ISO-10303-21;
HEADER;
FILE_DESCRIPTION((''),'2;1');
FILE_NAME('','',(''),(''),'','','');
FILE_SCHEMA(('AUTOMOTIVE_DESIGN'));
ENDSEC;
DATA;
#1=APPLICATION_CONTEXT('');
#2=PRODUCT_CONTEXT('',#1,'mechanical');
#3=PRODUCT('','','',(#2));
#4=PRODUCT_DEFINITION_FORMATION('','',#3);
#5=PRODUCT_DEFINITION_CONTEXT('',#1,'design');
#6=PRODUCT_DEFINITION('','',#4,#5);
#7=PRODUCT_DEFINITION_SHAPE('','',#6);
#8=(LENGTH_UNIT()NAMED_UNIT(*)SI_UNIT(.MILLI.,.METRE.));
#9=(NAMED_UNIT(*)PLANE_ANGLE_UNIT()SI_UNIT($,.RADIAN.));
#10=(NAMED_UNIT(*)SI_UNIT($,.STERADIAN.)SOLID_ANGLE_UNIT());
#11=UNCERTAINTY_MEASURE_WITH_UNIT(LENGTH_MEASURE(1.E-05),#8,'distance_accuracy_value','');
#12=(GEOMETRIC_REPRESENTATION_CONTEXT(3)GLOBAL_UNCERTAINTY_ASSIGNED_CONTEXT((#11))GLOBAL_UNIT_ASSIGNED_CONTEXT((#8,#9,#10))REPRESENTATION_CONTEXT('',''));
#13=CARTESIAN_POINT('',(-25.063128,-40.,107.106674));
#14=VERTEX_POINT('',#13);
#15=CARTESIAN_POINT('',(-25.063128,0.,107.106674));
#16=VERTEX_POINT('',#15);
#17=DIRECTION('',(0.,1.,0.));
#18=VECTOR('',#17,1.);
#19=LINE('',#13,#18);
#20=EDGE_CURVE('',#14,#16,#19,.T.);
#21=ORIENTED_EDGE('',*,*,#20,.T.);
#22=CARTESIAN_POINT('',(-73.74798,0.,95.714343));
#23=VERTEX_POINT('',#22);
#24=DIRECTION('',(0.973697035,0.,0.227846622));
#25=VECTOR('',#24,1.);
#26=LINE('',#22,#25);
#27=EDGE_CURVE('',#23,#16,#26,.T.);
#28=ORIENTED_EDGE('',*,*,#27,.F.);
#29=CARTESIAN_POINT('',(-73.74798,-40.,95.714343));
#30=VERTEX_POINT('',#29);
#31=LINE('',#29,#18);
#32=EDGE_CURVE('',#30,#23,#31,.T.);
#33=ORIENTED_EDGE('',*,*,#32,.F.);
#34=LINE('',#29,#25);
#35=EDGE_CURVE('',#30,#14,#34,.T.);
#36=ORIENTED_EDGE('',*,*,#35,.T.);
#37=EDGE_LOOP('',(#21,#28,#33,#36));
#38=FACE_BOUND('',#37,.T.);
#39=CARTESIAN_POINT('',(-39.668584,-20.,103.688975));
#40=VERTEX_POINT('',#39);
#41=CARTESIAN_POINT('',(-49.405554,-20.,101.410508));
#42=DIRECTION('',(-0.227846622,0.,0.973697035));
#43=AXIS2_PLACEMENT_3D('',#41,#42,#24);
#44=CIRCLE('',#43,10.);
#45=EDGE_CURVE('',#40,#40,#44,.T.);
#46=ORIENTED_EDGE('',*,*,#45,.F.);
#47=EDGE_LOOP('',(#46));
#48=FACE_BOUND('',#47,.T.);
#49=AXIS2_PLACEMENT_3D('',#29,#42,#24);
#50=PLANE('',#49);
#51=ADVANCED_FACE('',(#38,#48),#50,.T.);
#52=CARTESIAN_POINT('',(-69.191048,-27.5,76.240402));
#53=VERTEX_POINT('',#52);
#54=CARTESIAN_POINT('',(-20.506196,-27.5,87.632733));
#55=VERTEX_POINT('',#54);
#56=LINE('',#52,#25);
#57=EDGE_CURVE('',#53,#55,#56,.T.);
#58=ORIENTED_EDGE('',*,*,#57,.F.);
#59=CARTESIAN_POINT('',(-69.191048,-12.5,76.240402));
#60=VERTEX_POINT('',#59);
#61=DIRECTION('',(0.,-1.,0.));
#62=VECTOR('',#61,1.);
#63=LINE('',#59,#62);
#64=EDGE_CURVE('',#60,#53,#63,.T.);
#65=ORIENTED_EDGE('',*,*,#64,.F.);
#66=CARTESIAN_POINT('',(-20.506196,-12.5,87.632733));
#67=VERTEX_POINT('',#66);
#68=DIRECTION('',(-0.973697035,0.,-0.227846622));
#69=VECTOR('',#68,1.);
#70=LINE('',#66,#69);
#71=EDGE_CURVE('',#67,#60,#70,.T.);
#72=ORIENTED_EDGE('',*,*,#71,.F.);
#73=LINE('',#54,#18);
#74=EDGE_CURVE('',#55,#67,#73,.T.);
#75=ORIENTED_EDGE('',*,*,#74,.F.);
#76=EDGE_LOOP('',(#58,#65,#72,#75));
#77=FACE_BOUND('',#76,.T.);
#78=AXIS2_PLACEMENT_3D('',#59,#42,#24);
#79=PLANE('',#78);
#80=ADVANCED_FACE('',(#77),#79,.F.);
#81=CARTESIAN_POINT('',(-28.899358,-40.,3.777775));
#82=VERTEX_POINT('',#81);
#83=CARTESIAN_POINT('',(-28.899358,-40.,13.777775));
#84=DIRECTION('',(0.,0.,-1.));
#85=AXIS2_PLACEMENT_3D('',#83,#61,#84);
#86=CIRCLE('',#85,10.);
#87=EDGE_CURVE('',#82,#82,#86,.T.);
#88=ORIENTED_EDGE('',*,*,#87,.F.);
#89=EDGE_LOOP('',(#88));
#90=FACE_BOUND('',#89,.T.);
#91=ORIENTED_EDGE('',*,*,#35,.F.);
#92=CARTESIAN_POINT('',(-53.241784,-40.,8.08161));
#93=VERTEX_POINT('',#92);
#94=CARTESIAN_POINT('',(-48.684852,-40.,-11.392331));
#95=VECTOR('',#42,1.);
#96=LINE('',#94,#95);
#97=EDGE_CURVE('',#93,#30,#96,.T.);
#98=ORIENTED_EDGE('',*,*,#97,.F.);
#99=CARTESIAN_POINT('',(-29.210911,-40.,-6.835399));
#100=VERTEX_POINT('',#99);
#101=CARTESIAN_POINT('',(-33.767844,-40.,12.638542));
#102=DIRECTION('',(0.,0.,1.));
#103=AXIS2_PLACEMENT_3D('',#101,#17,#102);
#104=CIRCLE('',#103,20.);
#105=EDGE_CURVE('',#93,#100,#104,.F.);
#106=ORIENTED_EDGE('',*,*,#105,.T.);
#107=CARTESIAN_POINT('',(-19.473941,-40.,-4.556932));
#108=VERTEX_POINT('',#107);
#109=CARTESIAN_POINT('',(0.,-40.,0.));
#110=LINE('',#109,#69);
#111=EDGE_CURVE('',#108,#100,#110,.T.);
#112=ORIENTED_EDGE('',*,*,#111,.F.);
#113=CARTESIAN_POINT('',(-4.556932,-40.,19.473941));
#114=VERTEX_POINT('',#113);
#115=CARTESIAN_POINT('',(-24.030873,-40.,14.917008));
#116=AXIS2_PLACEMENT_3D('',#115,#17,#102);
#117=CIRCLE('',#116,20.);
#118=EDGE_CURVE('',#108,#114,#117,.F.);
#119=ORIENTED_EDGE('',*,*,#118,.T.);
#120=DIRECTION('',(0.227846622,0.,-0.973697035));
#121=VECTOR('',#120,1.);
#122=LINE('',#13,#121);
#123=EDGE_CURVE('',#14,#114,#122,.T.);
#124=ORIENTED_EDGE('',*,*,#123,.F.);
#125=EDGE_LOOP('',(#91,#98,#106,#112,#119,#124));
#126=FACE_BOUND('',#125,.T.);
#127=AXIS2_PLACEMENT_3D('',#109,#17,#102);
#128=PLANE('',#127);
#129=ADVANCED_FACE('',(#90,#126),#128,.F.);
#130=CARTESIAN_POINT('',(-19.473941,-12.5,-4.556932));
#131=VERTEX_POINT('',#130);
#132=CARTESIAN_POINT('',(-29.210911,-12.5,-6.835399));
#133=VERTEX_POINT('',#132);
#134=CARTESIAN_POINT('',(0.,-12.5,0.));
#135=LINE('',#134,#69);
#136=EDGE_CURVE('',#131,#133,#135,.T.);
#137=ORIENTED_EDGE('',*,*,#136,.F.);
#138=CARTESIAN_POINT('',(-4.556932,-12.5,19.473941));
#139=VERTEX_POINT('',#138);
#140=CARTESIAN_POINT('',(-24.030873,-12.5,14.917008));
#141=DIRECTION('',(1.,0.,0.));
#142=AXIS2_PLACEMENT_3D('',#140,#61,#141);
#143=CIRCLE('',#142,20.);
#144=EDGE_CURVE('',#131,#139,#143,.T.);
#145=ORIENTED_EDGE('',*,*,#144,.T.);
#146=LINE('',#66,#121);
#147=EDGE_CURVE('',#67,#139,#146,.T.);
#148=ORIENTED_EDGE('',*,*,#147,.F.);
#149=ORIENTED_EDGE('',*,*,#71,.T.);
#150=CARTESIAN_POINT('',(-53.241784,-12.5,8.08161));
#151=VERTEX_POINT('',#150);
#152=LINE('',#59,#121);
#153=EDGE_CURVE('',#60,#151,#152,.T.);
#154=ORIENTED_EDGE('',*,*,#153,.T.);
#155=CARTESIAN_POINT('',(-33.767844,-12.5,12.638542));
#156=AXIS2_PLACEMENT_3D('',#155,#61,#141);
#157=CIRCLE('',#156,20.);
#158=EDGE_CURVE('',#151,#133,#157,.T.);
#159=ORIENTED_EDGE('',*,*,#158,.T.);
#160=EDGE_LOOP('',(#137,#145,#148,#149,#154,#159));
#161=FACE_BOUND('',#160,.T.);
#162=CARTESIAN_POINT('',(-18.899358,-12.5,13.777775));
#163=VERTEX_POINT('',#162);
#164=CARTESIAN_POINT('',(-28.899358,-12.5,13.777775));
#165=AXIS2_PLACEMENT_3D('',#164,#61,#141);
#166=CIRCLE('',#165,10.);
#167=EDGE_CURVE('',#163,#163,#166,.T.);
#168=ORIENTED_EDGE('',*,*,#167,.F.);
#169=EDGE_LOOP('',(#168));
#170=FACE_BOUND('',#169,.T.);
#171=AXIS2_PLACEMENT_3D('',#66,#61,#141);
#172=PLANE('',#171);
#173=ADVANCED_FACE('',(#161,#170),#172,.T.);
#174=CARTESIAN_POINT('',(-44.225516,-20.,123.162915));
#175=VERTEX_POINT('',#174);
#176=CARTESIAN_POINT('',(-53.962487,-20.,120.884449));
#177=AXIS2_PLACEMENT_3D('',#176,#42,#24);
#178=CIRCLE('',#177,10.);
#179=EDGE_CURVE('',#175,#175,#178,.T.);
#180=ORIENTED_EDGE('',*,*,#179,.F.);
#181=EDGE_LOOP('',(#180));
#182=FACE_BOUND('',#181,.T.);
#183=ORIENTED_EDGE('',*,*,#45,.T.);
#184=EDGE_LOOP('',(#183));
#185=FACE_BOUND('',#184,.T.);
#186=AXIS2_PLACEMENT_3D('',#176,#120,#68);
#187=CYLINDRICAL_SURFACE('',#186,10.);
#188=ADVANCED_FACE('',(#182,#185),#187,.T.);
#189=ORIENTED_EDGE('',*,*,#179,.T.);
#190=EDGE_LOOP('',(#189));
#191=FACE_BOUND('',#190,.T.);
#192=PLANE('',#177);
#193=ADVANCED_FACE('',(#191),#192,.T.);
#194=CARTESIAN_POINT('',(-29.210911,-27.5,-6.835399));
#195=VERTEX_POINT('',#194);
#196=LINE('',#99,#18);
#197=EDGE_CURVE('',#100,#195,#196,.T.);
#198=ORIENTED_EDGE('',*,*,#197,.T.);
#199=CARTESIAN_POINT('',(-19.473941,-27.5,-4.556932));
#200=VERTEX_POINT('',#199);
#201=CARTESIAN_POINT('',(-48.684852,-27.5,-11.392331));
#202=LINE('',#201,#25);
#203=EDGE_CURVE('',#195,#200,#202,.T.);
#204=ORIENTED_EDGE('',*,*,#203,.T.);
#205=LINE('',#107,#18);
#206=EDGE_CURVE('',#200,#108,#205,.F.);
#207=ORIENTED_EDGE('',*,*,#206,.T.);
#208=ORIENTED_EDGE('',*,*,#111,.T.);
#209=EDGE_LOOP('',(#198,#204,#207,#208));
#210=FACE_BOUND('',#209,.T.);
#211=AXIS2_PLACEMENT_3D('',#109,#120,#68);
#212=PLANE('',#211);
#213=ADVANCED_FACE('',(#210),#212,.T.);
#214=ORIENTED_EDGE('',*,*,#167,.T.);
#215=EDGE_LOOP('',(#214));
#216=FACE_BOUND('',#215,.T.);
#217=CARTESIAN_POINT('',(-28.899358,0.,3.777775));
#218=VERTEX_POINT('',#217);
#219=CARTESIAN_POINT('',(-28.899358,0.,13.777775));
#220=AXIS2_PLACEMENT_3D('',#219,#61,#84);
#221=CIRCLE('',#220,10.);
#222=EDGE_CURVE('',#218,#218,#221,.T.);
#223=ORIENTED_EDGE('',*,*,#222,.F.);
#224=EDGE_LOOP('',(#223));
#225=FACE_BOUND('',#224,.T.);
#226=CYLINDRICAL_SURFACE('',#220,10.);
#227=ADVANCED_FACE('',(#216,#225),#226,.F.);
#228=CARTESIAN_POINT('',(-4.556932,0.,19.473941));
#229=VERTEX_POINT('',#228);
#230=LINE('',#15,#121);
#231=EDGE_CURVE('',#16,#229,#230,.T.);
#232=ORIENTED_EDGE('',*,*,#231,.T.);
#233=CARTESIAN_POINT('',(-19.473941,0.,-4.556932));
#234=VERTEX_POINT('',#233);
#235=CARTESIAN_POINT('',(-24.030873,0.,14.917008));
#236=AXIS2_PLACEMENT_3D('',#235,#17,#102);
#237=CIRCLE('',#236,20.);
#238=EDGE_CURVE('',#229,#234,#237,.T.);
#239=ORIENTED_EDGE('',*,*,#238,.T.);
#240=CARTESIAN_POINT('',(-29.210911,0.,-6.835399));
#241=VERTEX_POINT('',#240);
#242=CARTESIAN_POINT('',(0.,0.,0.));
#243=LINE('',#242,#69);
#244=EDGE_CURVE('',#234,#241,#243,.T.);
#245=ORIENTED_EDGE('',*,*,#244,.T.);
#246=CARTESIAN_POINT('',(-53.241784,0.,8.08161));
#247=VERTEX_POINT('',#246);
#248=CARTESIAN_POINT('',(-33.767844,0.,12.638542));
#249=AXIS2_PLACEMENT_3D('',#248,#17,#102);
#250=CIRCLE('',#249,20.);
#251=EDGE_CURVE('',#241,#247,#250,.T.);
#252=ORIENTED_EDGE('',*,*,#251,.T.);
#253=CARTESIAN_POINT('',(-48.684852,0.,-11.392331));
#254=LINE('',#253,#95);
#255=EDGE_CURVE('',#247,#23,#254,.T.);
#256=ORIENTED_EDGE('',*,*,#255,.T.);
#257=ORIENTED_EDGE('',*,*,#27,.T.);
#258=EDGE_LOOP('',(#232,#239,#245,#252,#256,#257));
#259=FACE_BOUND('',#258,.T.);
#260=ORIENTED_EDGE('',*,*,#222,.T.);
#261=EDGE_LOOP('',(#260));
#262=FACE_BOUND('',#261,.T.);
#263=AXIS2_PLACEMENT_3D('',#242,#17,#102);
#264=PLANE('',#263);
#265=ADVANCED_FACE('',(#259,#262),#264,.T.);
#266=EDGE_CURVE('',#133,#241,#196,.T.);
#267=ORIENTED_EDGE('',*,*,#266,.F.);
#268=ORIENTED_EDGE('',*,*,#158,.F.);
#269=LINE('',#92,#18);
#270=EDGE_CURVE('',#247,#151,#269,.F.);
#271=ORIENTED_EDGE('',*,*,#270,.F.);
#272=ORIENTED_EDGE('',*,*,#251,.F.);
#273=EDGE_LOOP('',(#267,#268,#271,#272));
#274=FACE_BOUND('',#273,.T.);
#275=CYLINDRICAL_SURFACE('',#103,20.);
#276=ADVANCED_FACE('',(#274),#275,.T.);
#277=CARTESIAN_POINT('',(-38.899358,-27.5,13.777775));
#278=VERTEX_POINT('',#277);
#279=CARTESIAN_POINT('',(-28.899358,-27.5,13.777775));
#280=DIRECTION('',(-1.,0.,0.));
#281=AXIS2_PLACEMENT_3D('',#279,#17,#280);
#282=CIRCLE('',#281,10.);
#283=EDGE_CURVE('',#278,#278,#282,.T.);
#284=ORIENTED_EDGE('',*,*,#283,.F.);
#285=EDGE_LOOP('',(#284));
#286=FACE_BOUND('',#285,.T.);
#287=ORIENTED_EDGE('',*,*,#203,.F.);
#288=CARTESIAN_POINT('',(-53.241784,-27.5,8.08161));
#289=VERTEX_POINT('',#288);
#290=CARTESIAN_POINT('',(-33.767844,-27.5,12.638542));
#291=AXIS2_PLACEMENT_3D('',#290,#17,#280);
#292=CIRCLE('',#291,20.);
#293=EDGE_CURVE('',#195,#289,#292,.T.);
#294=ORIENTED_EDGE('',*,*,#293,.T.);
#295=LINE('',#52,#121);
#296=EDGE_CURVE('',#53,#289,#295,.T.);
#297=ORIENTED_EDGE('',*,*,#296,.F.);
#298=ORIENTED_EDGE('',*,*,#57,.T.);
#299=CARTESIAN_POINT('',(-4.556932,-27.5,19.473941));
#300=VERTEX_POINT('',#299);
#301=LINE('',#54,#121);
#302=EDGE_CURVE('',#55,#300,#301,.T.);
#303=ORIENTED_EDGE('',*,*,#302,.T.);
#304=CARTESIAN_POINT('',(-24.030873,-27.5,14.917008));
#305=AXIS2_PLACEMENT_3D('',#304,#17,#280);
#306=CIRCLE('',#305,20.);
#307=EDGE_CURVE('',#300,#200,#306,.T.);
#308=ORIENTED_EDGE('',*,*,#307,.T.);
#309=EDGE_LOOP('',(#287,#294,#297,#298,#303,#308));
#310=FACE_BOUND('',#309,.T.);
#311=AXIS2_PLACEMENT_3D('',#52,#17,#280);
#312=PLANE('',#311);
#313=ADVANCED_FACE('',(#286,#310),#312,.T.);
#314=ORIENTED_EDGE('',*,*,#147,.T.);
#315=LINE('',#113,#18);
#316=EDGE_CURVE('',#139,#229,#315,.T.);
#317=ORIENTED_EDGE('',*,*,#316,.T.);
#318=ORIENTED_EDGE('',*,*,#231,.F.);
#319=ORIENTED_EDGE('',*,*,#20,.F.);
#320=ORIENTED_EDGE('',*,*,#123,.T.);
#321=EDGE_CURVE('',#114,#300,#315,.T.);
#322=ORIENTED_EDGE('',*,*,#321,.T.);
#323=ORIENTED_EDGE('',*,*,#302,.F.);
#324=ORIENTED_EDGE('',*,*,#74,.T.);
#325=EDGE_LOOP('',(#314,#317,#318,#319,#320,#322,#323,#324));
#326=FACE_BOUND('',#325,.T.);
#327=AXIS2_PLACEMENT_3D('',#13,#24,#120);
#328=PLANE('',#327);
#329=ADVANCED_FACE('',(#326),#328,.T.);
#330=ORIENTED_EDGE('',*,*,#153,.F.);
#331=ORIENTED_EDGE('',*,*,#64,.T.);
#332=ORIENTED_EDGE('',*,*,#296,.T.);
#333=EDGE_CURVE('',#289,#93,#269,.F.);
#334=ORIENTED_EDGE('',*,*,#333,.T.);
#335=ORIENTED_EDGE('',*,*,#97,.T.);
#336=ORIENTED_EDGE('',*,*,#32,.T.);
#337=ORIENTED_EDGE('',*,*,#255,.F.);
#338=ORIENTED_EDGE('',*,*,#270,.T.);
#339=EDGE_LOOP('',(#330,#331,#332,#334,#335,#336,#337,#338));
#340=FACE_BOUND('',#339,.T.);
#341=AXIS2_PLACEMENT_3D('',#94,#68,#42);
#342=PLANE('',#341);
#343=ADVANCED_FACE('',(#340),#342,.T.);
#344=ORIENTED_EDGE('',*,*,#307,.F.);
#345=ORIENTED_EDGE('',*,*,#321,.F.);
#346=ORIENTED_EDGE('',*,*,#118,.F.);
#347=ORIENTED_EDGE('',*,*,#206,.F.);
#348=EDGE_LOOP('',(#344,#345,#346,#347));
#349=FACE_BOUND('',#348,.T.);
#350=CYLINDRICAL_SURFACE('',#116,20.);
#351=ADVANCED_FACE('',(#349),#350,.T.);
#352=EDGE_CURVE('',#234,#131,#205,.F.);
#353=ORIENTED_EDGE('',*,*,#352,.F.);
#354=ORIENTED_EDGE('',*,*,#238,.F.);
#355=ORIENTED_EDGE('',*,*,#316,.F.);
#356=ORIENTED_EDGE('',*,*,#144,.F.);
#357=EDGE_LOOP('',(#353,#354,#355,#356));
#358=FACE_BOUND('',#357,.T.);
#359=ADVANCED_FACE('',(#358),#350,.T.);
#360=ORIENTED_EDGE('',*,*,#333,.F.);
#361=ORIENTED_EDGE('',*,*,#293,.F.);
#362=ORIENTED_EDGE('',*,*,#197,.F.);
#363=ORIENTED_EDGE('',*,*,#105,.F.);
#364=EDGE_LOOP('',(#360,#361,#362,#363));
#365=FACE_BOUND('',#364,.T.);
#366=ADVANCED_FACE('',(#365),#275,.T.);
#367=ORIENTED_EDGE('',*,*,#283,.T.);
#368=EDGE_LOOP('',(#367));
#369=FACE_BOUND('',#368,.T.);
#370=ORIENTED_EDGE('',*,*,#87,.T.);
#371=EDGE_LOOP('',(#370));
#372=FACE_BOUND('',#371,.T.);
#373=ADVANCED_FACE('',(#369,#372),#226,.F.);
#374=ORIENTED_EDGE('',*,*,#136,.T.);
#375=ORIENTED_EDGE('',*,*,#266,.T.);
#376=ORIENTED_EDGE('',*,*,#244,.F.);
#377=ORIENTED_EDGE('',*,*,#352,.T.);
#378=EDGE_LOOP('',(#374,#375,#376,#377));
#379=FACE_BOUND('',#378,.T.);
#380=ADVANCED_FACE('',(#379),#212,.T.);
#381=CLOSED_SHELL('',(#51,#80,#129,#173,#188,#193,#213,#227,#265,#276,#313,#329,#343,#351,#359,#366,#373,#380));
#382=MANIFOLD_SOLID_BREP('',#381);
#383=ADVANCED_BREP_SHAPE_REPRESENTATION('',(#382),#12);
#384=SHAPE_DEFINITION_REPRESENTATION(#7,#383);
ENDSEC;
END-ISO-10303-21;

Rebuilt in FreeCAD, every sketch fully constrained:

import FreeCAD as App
import Part
import Sketcher

V = App.Vector
Q = App.Units.Quantity


def edges_at(feature, points):
    """Names of the edges that pass closest to the given points."""
    edges = feature.Shape.Edges
    near = lambda p: min(range(len(edges)), key=lambda i: edges[i].distToShape(Part.Vertex(*p))[0])
    return sorted({f"Edge{near(p) + 1}" for p in points})


def add_polygon(sketch, points):
    """Adds a closed chain of lines whose ends are joined by coincident constraints."""
    first, n = sketch.GeometryCount, len(points)
    for a, b in zip(points, points[1:] + points[:1]):
        sketch.addGeometry(Part.LineSegment(App.Vector(*a, 0), App.Vector(*b, 0)), False)
    for i in range(n):
        sketch.addConstraint(Sketcher.Constraint("Coincident", first + i, 2, first + (i + 1) % n, 1))

doc = App.newDocument("Part")
body = doc.addObject("PartDesign::Body", "Body")

# Sketch on XZ plane
sketch1 = body.newObject("Sketcher::SketchObject", "Sketch")
sketch1.AttachmentSupport = (doc.getObject("XZ_Plane"), [""])
sketch1.MapMode = "FlatFace"
add_polygon(sketch1, [(-25.063128, 107.106674), (0, 0), (-48.684852, -11.392331), (-73.74798, 95.714343)])  # lines 0-3
sketch1.addConstraint([
    Sketcher.Constraint("Coincident", 0, 2, -1, 1),
    Sketcher.Constraint("Perpendicular", 0, 1),
    Sketcher.Constraint("Perpendicular", 1, 2),
    Sketcher.Constraint("Perpendicular", 2, 3),
    Sketcher.Constraint("Distance", 0, Q("110 mm")),
    Sketcher.Constraint("Distance", 1, Q("50 mm")),
    Sketcher.Constraint("DistanceX", 1, 2, -1, 1, Q("48.684852 mm")),
])
pad1 = body.newObject("PartDesign::Pad", "Pad")
pad1.Profile = sketch1
pad1.Length = 40

# Sketch on an angled plane
sketch2 = body.newObject("Sketcher::SketchObject", "Sketch001")
sketch2.Placement = App.Placement(V(1.578968, -248.415731, 0.369481), App.Rotation(V(0.949498442, -0.221555699, 0.222184114), V(0.215728127, 0.975147718, 0.050480718), V(-0.227846622, 0, 0.973697035), "ZXY"))
add_polygon(sketch2, [(-102.607182, 218.615622), (-99.283846, 203.988406), (-50.52646, 215.066191), (-53.849796, 229.693407)])  # lines 0-3
sketch2.addConstraint([
    Sketcher.Constraint("Perpendicular", 0, 1),
    Sketcher.Constraint("Perpendicular", 1, 2),
    Sketcher.Constraint("Perpendicular", 2, 3),
    Sketcher.Constraint("Distance", 0, Q("15 mm")),
    Sketcher.Constraint("Distance", 1, Q("50 mm")),
    Sketcher.Constraint("DistanceY", 0, 2, 2, 2, Q("25.705001 mm")),
    Sketcher.Constraint("DistanceX", 1, 2, -1, 1, Q("50.52646 mm")),
    Sketcher.Constraint("DistanceY", -1, 1, 1, 2, Q("215.066191 mm")),
])
pocket1 = body.newObject("PartDesign::Pocket", "Pocket")
pocket1.Profile = sketch2
pocket1.Length = 90
pocket1.Reversed = True
doc.recompute()

fillet = body.newObject("PartDesign::Fillet", "Fillet")
fillet.Base = (pocket1, edges_at(pocket1, [
    (0, -6.25, 0),
    (-48.685, -6.25, -11.392),
    (-48.685, -33.75, -11.392),
    (0, -33.75, 0),
]))
fillet.Radius = 20

# Sketch on XZ plane
sketch3 = body.newObject("Sketcher::SketchObject", "Sketch002")
sketch3.AttachmentSupport = (doc.getObject("XZ_Plane"), [""])
sketch3.MapMode = "FlatFace"
sketch3.AttachmentOffset = App.Placement(V(0, 0, 40), App.Rotation())
sketch3.addGeometry(Part.Circle(V(-28.899358, 13.777775, 0), V(0, 0, 1), 10), False)
sketch3.addConstraint([
    Sketcher.Constraint("Diameter", 0, Q("20 mm")),
    Sketcher.Constraint("DistanceX", 0, 3, -1, 1, Q("28.899358 mm")),
    Sketcher.Constraint("DistanceY", -1, 1, 0, 3, Q("13.777775 mm")),
])
pocket2 = body.newObject("PartDesign::Pocket", "Pocket001")
pocket2.Profile = sketch3
pocket2.Type = "ThroughAll"

# Sketch on an angled plane
sketch4 = body.newObject("Sketcher::SketchObject", "Sketch003")
sketch4.Placement = App.Placement(V(-24.856079, -32.574722, 107.155124), App.Rotation(V(-0.94660116, -0.234267522, -0.221506145), V(0.228105592, -0.97217217, 0.053377064), V(-0.227846622, 0, 0.973697035), "ZXY"))
sketch4.addGeometry(Part.Circle(V(21.565181, -18.131298, 0), V(0, 0, 1), 10), False)
sketch4.addConstraint([
    Sketcher.Constraint("Diameter", 0, Q("20 mm")),
    Sketcher.Constraint("DistanceY", 0, 3, -1, 1, Q("18.131298 mm")),
    Sketcher.Constraint("DistanceX", -1, 1, 0, 3, Q("21.565181 mm")),
])
pad2 = body.newObject("PartDesign::Pad", "Pad001")
pad2.Profile = sketch4
pad2.Length = 20

doc.recompute()
